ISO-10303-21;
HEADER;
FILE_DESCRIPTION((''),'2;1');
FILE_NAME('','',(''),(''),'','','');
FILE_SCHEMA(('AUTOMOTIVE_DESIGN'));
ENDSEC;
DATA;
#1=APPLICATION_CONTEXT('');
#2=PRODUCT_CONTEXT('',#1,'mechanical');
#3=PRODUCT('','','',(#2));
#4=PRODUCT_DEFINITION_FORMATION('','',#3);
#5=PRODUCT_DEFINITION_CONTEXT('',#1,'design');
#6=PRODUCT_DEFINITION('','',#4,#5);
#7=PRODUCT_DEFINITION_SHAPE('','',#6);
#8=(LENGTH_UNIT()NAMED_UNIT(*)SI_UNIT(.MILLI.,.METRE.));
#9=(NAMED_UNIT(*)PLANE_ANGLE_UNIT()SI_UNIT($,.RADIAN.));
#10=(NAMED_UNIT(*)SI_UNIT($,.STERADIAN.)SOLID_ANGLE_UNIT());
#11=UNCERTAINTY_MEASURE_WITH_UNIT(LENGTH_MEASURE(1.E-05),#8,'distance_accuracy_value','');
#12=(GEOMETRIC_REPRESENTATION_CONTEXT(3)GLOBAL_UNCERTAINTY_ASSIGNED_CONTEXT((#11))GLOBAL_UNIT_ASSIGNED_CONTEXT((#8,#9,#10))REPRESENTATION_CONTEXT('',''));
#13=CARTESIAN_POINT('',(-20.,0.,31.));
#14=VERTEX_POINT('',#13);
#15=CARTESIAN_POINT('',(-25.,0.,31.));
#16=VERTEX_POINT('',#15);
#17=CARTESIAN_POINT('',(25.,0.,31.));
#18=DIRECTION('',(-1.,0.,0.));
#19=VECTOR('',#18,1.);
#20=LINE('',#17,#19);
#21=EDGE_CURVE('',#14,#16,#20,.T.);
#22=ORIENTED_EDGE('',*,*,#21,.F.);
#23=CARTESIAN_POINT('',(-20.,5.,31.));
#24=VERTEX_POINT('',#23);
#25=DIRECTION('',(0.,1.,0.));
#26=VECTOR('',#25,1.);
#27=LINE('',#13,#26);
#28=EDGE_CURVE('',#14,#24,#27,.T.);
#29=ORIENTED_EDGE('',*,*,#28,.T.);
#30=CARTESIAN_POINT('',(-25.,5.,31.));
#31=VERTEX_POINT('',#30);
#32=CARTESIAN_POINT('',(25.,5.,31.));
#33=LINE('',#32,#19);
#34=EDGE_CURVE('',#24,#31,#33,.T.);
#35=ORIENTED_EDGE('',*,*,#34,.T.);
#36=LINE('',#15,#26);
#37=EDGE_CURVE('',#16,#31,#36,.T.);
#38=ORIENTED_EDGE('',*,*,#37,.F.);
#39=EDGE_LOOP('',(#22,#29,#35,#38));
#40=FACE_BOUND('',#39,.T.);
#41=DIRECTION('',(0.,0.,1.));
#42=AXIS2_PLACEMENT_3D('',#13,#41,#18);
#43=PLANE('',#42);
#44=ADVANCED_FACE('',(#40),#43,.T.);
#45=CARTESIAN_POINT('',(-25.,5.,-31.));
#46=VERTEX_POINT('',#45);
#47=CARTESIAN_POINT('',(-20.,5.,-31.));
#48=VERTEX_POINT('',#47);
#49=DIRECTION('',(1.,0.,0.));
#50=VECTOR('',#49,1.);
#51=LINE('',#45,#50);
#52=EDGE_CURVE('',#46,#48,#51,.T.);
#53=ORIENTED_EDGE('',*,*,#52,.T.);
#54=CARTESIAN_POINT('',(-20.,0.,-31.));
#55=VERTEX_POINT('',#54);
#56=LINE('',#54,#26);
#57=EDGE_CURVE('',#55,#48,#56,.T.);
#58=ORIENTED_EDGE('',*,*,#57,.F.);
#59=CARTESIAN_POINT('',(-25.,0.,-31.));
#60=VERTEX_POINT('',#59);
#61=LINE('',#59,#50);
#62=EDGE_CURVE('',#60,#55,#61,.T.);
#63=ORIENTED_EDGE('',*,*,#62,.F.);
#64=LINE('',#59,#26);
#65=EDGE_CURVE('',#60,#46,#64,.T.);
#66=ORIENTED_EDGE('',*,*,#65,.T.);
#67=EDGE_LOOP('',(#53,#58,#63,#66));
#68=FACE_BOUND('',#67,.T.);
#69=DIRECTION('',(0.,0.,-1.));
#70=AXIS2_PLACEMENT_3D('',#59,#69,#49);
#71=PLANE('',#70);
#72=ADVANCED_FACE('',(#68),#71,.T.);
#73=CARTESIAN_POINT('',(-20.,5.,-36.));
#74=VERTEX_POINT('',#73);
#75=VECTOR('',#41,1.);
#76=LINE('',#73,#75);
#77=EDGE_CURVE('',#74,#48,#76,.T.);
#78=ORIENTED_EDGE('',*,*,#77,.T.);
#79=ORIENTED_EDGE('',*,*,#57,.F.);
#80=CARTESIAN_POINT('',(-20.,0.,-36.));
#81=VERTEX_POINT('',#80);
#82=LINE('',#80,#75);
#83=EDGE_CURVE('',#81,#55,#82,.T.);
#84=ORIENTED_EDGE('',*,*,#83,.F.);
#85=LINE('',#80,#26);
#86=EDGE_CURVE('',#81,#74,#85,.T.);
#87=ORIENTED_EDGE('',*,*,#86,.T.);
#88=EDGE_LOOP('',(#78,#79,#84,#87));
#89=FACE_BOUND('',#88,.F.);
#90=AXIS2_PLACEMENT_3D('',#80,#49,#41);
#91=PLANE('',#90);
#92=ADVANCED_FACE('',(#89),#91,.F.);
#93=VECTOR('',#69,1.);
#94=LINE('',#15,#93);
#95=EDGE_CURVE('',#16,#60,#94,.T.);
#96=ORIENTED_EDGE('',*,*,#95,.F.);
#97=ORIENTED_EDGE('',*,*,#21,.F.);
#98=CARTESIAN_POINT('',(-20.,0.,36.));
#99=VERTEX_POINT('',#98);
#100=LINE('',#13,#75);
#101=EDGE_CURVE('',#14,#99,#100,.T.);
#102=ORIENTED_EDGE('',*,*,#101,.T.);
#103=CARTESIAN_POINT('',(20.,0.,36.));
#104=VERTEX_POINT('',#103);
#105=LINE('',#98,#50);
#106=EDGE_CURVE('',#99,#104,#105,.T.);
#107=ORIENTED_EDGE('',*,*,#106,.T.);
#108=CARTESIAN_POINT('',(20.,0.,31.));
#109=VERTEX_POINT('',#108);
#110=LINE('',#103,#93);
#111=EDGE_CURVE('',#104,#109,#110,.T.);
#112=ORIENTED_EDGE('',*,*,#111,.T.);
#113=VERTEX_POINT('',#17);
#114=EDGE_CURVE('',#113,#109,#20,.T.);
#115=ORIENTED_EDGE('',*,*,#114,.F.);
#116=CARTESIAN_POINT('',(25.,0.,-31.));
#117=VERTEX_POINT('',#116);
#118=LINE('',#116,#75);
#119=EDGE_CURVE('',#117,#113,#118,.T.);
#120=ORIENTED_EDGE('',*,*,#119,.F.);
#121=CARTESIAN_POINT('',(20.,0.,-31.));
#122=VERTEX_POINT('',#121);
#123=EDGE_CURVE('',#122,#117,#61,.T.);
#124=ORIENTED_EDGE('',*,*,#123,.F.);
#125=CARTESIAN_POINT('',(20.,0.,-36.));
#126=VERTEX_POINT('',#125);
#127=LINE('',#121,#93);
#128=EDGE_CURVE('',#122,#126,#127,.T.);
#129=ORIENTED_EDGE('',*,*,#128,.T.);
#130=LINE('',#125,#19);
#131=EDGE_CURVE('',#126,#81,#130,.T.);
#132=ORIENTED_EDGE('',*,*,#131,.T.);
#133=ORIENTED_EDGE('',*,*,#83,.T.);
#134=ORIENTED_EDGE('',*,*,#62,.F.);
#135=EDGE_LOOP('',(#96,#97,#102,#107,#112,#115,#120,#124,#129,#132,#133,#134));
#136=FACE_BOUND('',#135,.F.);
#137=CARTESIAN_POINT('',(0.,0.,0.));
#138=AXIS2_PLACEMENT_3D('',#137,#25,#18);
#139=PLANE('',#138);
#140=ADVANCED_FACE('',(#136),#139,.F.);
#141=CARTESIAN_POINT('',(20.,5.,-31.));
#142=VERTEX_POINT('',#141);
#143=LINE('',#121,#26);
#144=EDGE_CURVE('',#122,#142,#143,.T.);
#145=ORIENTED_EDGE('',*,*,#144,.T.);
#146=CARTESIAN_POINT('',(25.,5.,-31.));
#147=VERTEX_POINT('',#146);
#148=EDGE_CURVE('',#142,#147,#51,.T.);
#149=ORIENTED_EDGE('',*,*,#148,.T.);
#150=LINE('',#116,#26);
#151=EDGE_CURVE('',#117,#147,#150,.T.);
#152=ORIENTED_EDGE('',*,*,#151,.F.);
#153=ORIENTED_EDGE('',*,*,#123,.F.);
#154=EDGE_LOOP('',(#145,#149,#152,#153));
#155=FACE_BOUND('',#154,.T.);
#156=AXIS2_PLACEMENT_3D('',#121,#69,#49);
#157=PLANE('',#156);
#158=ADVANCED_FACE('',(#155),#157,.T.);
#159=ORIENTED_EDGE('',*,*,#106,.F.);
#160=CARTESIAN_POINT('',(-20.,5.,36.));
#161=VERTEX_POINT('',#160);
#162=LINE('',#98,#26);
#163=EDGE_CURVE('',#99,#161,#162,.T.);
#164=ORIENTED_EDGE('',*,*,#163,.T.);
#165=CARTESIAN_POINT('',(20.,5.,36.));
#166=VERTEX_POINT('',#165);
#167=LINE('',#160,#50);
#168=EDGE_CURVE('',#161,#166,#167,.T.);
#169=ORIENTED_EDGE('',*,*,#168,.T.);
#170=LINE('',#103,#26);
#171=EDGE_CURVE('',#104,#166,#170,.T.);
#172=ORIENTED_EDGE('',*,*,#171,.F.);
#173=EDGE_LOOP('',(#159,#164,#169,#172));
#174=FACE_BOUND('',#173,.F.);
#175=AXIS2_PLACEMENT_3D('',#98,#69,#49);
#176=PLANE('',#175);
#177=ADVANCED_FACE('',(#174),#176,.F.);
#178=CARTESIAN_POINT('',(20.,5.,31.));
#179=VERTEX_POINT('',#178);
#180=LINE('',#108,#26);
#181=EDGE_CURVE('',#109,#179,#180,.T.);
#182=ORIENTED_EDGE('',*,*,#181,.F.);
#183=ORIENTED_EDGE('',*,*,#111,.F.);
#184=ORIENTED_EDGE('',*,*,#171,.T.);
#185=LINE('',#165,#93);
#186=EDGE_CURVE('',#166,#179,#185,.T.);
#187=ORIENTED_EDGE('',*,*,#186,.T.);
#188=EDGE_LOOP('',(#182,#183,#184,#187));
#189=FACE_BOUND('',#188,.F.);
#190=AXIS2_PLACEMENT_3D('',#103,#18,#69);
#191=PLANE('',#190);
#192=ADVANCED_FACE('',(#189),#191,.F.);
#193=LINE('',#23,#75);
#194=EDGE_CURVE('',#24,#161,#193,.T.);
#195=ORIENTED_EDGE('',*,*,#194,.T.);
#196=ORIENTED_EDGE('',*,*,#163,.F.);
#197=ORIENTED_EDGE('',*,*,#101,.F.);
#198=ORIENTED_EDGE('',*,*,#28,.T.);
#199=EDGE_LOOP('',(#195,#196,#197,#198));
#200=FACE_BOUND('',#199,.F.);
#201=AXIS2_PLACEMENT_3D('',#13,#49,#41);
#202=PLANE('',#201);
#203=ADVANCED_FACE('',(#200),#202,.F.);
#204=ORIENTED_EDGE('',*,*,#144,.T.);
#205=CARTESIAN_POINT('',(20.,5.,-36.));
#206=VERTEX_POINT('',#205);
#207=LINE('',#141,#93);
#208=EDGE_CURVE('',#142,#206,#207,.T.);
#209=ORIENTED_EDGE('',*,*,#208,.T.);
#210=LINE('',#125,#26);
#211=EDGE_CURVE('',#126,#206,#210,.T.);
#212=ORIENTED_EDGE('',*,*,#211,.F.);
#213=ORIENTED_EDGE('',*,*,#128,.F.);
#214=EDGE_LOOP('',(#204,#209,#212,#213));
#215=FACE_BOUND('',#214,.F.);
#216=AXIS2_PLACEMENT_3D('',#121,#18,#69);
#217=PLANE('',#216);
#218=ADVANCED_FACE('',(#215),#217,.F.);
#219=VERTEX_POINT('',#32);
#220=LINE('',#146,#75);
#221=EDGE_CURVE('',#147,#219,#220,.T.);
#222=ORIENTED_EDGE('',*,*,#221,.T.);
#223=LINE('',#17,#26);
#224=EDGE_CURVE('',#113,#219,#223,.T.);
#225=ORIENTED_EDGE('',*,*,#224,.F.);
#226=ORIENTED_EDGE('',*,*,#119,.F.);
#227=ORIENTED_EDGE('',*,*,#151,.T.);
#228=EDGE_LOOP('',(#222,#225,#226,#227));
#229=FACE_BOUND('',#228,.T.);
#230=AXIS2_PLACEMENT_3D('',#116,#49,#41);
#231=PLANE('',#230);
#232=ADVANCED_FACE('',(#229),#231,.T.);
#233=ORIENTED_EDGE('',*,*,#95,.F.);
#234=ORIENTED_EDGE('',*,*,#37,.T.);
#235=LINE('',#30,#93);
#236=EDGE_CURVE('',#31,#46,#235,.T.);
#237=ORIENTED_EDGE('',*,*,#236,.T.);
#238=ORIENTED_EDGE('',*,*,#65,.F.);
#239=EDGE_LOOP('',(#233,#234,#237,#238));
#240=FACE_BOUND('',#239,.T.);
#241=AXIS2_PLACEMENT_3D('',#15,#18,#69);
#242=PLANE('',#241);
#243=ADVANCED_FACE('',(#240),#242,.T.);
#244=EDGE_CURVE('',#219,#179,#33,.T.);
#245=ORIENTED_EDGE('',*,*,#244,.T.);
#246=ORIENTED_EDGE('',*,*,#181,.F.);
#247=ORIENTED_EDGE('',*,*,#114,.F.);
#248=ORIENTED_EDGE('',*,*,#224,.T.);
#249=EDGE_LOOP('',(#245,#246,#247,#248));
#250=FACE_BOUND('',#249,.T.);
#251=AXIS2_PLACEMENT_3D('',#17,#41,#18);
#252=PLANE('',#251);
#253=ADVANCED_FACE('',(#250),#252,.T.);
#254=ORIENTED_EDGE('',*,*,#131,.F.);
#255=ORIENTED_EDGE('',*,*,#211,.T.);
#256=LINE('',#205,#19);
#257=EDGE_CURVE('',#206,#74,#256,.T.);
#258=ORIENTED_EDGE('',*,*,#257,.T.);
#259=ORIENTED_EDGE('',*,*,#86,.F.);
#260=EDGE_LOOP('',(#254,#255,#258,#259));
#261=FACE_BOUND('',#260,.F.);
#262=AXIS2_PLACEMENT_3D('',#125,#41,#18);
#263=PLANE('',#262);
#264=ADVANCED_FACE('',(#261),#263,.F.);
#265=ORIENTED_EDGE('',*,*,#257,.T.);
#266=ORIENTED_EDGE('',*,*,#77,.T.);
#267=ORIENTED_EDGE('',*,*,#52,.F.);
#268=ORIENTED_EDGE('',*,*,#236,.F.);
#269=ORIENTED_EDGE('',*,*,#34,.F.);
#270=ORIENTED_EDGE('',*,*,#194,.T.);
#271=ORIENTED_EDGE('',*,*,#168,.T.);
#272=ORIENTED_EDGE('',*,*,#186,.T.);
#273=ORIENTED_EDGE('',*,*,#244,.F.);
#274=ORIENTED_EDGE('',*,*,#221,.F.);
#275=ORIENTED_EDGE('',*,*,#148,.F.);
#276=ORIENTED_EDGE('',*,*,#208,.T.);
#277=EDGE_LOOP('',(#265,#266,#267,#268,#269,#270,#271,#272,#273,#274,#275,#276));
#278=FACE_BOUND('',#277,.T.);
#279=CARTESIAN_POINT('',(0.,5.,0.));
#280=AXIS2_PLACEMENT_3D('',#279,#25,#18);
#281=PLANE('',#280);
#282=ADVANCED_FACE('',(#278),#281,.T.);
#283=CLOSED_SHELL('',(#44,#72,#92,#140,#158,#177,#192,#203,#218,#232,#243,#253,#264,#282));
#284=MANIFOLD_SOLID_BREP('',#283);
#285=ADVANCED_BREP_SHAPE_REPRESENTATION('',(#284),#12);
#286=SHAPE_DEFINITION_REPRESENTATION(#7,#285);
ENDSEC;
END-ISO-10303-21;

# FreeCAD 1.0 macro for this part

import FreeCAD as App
import Part
import Sketcher

V = App.Vector


def add_polygon(sketch, points):
    """Adds a closed chain of lines whose ends are joined by coincident constraints."""
    first, n = sketch.GeometryCount, len(points)
    for a, b in zip(points, points[1:] + points[:1]):
        sketch.addGeometry(Part.LineSegment(App.Vector(*a, 0), App.Vector(*b, 0)), False)
    for i in range(n):
        sketch.addConstraint(Sketcher.Constraint("Coincident", first + i, 2, first + (i + 1) % n, 1))

doc = App.newDocument("Part")
body = doc.addObject("PartDesign::Body", "Body")

sketch1 = body.newObject("Sketcher::SketchObject", "Sketch")
sketch1.AttachmentSupport = (doc.getObject("XZ_Plane"), [""])
sketch1.MapMode = "FlatFace"
add_polygon(sketch1, [(-20, -31), (-25, -31), (-25, 31), (-20, 31), (-20, 36), (20, 36), (20, 31), (25, 31), (25, -31), (20, -31), (20, -36), (-20, -36)])
sketch1.addConstraint([
    Sketcher.Constraint("Horizontal", 0),
    Sketcher.Constraint("Vertical", 1),
    Sketcher.Constraint("Horizontal", 2),
    Sketcher.Constraint("Vertical", 3),
    Sketcher.Constraint("Horizontal", 4),
    Sketcher.Constraint("Vertical", 5),
    Sketcher.Constraint("Horizontal", 6),
    Sketcher.Constraint("Vertical", 7),
    Sketcher.Constraint("Horizontal", 8),
    Sketcher.Constraint("Vertical", 9),
    Sketcher.Constraint("Horizontal", 10),
    Sketcher.Constraint("Vertical", 11),
    Sketcher.Constraint("Symmetric", 0, 2, 6, 2, -1, 1),
    Sketcher.Constraint("Symmetric", 2, 2, 8, 2, -1, 1),
    Sketcher.Constraint("Symmetric", 4, 2, 10, 2, -1, 1),
    Sketcher.Constraint("Symmetric", 2, 2, 5, 2, -2),
    Sketcher.Constraint("Equal", 8, 3),
    Sketcher.Constraint("DistanceX", 0, 2, 0, 1, 5.0),
    Sketcher.Constraint("DistanceX", 4, 1, 4, 2, 40.0),
    Sketcher.Constraint("DistanceY", 1, 1, 1, 2, 62.0),
])
pad1 = body.newObject("PartDesign::Pad", "Pad")
pad1.Profile = sketch1
pad1.Length = 5
pad1.Reversed = True

doc.recompute()
